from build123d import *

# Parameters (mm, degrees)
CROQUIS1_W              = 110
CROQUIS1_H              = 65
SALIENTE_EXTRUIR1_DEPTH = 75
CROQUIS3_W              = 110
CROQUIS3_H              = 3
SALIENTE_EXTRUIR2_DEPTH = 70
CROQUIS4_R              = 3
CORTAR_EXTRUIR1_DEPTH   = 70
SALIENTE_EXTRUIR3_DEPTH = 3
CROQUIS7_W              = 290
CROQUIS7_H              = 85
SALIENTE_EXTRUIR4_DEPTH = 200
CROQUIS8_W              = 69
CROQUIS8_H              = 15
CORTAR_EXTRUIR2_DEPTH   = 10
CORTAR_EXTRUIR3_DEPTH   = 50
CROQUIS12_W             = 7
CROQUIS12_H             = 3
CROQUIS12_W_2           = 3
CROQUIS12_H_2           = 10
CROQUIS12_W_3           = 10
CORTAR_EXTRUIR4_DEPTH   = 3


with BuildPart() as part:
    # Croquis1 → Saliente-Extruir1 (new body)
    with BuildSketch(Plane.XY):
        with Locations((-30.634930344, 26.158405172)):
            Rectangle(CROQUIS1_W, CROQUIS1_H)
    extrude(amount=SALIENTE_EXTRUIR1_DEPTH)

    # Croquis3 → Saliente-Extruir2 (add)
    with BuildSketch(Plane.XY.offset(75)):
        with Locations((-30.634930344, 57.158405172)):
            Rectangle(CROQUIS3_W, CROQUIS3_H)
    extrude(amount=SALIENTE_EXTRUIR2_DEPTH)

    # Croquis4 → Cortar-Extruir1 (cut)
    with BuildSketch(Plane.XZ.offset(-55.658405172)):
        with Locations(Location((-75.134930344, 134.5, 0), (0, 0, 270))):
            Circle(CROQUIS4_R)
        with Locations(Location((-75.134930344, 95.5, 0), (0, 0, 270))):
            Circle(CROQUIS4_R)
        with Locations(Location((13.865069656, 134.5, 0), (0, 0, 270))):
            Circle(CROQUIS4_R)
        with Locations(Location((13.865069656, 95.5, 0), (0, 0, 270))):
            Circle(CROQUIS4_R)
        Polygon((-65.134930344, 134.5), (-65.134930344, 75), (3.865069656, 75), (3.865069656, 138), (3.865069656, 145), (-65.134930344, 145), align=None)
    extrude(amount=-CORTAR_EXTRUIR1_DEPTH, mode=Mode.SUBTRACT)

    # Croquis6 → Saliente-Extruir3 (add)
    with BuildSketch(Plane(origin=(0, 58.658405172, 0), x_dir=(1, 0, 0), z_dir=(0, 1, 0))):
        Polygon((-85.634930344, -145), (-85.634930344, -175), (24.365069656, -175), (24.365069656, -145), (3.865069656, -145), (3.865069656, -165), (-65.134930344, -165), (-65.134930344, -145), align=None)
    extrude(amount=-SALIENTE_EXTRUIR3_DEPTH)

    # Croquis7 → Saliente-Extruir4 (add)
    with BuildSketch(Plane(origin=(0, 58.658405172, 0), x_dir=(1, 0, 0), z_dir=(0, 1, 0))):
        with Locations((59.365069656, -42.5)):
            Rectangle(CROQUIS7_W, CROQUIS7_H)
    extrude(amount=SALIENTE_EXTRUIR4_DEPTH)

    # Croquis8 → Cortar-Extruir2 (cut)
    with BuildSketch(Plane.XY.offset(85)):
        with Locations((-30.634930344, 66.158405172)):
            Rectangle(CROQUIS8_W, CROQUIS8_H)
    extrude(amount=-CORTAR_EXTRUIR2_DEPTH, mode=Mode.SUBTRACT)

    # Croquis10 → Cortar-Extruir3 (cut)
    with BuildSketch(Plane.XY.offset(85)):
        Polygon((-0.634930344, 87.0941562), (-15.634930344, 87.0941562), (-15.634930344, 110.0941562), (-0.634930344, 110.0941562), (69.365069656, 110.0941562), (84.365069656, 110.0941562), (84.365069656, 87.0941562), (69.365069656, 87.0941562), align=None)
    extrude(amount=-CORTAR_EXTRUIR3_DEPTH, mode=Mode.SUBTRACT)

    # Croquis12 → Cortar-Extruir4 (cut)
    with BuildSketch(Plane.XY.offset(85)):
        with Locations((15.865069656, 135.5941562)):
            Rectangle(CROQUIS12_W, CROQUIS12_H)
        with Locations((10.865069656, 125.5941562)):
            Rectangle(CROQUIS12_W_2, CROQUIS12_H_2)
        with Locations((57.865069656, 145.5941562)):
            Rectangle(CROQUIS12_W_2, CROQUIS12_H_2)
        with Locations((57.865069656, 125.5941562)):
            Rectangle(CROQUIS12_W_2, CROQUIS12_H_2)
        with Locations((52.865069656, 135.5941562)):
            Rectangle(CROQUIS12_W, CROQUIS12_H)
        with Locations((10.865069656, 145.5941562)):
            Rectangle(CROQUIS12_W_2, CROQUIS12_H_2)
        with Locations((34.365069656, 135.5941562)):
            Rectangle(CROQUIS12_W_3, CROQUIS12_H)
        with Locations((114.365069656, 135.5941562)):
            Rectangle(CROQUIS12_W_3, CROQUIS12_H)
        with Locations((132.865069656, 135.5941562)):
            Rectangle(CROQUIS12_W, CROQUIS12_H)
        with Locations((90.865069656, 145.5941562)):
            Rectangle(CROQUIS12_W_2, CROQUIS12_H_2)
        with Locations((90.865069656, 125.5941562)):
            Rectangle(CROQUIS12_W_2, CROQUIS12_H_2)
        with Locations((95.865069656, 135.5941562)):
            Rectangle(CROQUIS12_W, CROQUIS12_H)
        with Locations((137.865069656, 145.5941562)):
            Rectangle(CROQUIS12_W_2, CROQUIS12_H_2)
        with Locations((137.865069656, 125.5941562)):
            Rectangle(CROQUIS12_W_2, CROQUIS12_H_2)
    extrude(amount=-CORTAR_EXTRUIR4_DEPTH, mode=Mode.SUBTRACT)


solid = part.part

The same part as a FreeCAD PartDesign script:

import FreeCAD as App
import Part
import Sketcher

doc = App.newDocument("Part")
params = doc.addObject("Spreadsheet::Sheet", "Params")
for row, (alias, value) in enumerate([
    ("sketch1_width", "110 mm"),
    ("sketch1_height", "65 mm"),
    ("pad1_length", "75 mm"),
    ("sketch2_width", "110 mm"),
    ("sketch2_height", "3 mm"),
    ("pad2_length", "70 mm"),
    ("sketch3_diameter", "6 mm"),
    ("sketch3_width", "69 mm"),
    ("sketch3_height", "70 mm"),
    ("pocket1_length", "70 mm"),
    ("sketch4_width", "110 mm"),
    ("sketch4_width2", "69 mm"),
    ("sketch4_height", "30 mm"),
    ("sketch4_height2", "20 mm"),
    ("pad3_length", "3 mm"),
    ("sketch5_width", "290 mm"),
    ("sketch5_height", "85 mm"),
    ("pad4_length", "200 mm"),
    ("sketch6_width", "69 mm"),
    ("sketch6_height", "15 mm"),
    ("pocket2_length", "10 mm"),
    ("sketch7_width", "100 mm"),
    ("sketch7_height", "23 mm"),
    ("pocket3_length", "50 mm"),
    ("sketch8_width", "7 mm"),
    ("sketch8_width2", "3 mm"),
    ("sketch8_width3", "10 mm"),
    ("pocket4_length", "3 mm"),
], start=1):
    params.set(f"A{row}", alias)
    params.set(f"B{row}", "=" + value)
    params.setAlias(f"B{row}", alias)

body = doc.addObject("PartDesign::Body", "Body")

# Sketch on XY plane
sketch1 = body.newObject("Sketcher::SketchObject", "Sketch")
sketch1.AttachmentSupport = (doc.getObject("XY_Plane"), [""])
sketch1.MapMode = "FlatFace"
sketch1.addGeometry([
    Part.LineSegment(App.Vector(-86, 59, 0), App.Vector(-86, -6, 0)),
    Part.LineSegment(App.Vector(-86, -6, 0), App.Vector(24, -6, 0)),
    Part.LineSegment(App.Vector(24, -6, 0), App.Vector(24, 59, 0)),
    Part.LineSegment(App.Vector(24, 59, 0), App.Vector(-86, 59, 0)),
], False)
sketch1.addConstraint([
    Sketcher.Constraint("Coincident", 0, 2, 1, 1),
    Sketcher.Constraint("Coincident", 1, 2, 2, 1),
    Sketcher.Constraint("Coincident", 2, 2, 3, 1),
    Sketcher.Constraint("Coincident", 3, 2, 0, 1),
    Sketcher.Constraint("Vertical", 0),
    Sketcher.Constraint("Horizontal", 1),
    Sketcher.Constraint("Vertical", 2),
    Sketcher.Constraint("Horizontal", 3),
    Sketcher.Constraint("DistanceX", 1, 1, 1, 2, 110.0),
    Sketcher.Constraint("DistanceY", 0, 2, 0, 1, 65.0),
    Sketcher.Constraint("DistanceX", 0, 2, -1, 1, 85.63493),
    Sketcher.Constraint("DistanceY", 0, 2, -1, 1, 6.341595),
])
sketch1.setExpression("Constraints[8]", "Params.sketch1_width")
sketch1.setExpression("Constraints[9]", "Params.sketch1_height")
pad1 = body.newObject("PartDesign::Pad", "Pad")
pad1.Profile = sketch1
pad1.setExpression("Length", "Params.pad1_length")

# Sketch on XY plane
sketch2 = body.newObject("Sketcher::SketchObject", "Sketch001")
sketch2.AttachmentSupport = (doc.getObject("XY_Plane"), [""])
sketch2.MapMode = "FlatFace"
sketch2.AttachmentOffset = App.Placement(App.Vector(0, 0, 75), App.Rotation())
sketch2.addGeometry([
    Part.LineSegment(App.Vector(-85.6, 58.7, 0), App.Vector(-85.6, 55.7, 0)),
    Part.LineSegment(App.Vector(-85.6, 55.7, 0), App.Vector(24.4, 55.7, 0)),
    Part.LineSegment(App.Vector(24.4, 55.7, 0), App.Vector(24.4, 58.7, 0)),
    Part.LineSegment(App.Vector(24.4, 58.7, 0), App.Vector(-85.6, 58.7, 0)),
], False)
sketch2.addConstraint([
    Sketcher.Constraint("Coincident", 0, 2, 1, 1),
    Sketcher.Constraint("Coincident", 1, 2, 2, 1),
    Sketcher.Constraint("Coincident", 2, 2, 3, 1),
    Sketcher.Constraint("Coincident", 3, 2, 0, 1),
    Sketcher.Constraint("Vertical", 0),
    Sketcher.Constraint("Horizontal", 1),
    Sketcher.Constraint("Vertical", 2),
    Sketcher.Constraint("Horizontal", 3),
    Sketcher.Constraint("DistanceX", 1, 1, 1, 2, 110.0),
    Sketcher.Constraint("DistanceY", 0, 2, 0, 1, 3.0),
    Sketcher.Constraint("DistanceX", 0, 2, -1, 1, 85.63493),
    Sketcher.Constraint("DistanceY", -1, 1, 0, 2, 55.658405),
])
sketch2.setExpression("Constraints[8]", "Params.sketch2_width")
sketch2.setExpression("Constraints[9]", "Params.sketch2_height")
pad2 = body.newObject("PartDesign::Pad", "Pad001")
pad2.Profile = sketch2
pad2.setExpression("Length", "Params.pad2_length")

# Sketch on XZ plane
sketch3 = body.newObject("Sketcher::SketchObject", "Sketch002")
sketch3.AttachmentSupport = (doc.getObject("XZ_Plane"), [""])
sketch3.MapMode = "FlatFace"
sketch3.AttachmentOffset = App.Placement(App.Vector(0, 0, -55.658405), App.Rotation())
sketch3.addGeometry([
    Part.Circle(App.Vector(-75.1, 134.5, 0), App.Vector(0, 0, 1), 3),  # 0
    Part.Circle(App.Vector(-75.1, 95.5, 0), App.Vector(0, 0, 1), 3),  # 1
    Part.Circle(App.Vector(13.9, 134.5, 0), App.Vector(0, 0, 1), 3),  # 2
    Part.Circle(App.Vector(13.9, 95.5, 0), App.Vector(0, 0, 1), 3),  # 3
    Part.LineSegment(App.Vector(-65.1, 75, 0), App.Vector(3.9, 75, 0)),  # 4
    Part.LineSegment(App.Vector(3.9, 75, 0), App.Vector(3.9, 145, 0)),  # 5
    Part.LineSegment(App.Vector(3.9, 145, 0), App.Vector(-65.1, 145, 0)),  # 6
    Part.LineSegment(App.Vector(-65.1, 145, 0), App.Vector(-65.1, 75, 0)),  # 7
], False)
sketch3.addConstraint([
    Sketcher.Constraint("Coincident", 4, 2, 5, 1),
    Sketcher.Constraint("Coincident", 5, 2, 6, 1),
    Sketcher.Constraint("Coincident", 6, 2, 7, 1),
    Sketcher.Constraint("Coincident", 7, 2, 4, 1),
    Sketcher.Constraint("Horizontal", 4),
    Sketcher.Constraint("Vertical", 5),
    Sketcher.Constraint("Horizontal", 6),
    Sketcher.Constraint("Vertical", 7),
    Sketcher.Constraint("Equal", 0, 1),
    Sketcher.Constraint("Equal", 1, 2),
    Sketcher.Constraint("Equal", 2, 3),
    Sketcher.Constraint("Horizontal", 0, 3, 2, 3),
    Sketcher.Constraint("Horizontal", 1, 3, 3, 3),
    Sketcher.Constraint("Vertical", 0, 3, 1, 3),
    Sketcher.Constraint("Vertical", 2, 3, 3, 3),
    Sketcher.Constraint("Diameter", 0, 6.0),
    Sketcher.Constraint("DistanceX", 4, 1, 4, 2, 69.0),
    Sketcher.Constraint("DistanceY", 5, 1, 5, 2, 70.0),
    Sketcher.Constraint("DistanceY", -1, 1, 4, 2, 75.0),
    Sketcher.Constraint("DistanceY", 1, 3, 0, 3, 39.0),
    Sketcher.Constraint("DistanceX", 0, 3, 2, 3, 89.0),
    Sketcher.Constraint("DistanceX", 4, 2, 3, 3, 10.0),
    Sketcher.Constraint("DistanceY", -1, 1, 0, 3, 134.5),
    Sketcher.Constraint("DistanceX", 0, 3, -1, 1, 75.13493),
])
sketch3.setExpression("Constraints[15]", "Params.sketch3_diameter")
sketch3.setExpression("Constraints[16]", "Params.sketch3_width")
sketch3.setExpression("Constraints[17]", "Params.sketch3_height")
pocket1 = body.newObject("PartDesign::Pocket", "Pocket")
pocket1.Profile = sketch3
pocket1.setExpression("Length", "Params.pocket1_length")

# Sketch on XZ plane
sketch4 = body.newObject("Sketcher::SketchObject", "Sketch003")
sketch4.AttachmentSupport = (doc.getObject("XZ_Plane"), [""])
sketch4.MapMode = "FlatFace"
sketch4.AttachmentOffset = App.Placement(App.Vector(0, 0, -58.658405), App.Rotation())
sketch4.addGeometry([
    Part.LineSegment(App.Vector(-86, 145, 0), App.Vector(-86, 175, 0)),  # 0
    Part.LineSegment(App.Vector(-86, 175, 0), App.Vector(24, 175, 0)),  # 1
    Part.LineSegment(App.Vector(24, 175, 0), App.Vector(24, 145, 0)),  # 2
    Part.LineSegment(App.Vector(24, 145, 0), App.Vector(4, 145, 0)),  # 3
    Part.LineSegment(App.Vector(4, 145, 0), App.Vector(4, 165, 0)),  # 4
    Part.LineSegment(App.Vector(4, 165, 0), App.Vector(-65, 165, 0)),  # 5
    Part.LineSegment(App.Vector(-65, 165, 0), App.Vector(-65, 145, 0)),  # 6
    Part.LineSegment(App.Vector(-65, 145, 0), App.Vector(-86, 145, 0)),  # 7
], False)
sketch4.addConstraint([
    Sketcher.Constraint("Coincident", 0, 2, 1, 1),
    Sketcher.Constraint("Coincident", 1, 2, 2, 1),
    Sketcher.Constraint("Coincident", 2, 2, 3, 1),
    Sketcher.Constraint("Coincident", 3, 2, 4, 1),
    Sketcher.Constraint("Coincident", 4, 2, 5, 1),
    Sketcher.Constraint("Coincident", 5, 2, 6, 1),
    Sketcher.Constraint("Coincident", 6, 2, 7, 1),
    Sketcher.Constraint("Coincident", 7, 2, 0, 1),
    Sketcher.Constraint("Vertical", 0),
    Sketcher.Constraint("Horizontal", 1),
    Sketcher.Constraint("Vertical", 2),
    Sketcher.Constraint("Horizontal", 3),
    Sketcher.Constraint("Vertical", 4),
    Sketcher.Constraint("Horizontal", 5),
    Sketcher.Constraint("Vertical", 6),
    Sketcher.Constraint("Horizontal", 7),
    Sketcher.Constraint("Horizontal", 3, 2, 6, 2),
    Sketcher.Constraint("Equal", 3, 7),
    Sketcher.Constraint("DistanceX", 1, 1, 1, 2, 110.0),
    Sketcher.Constraint("DistanceX", 5, 2, 5, 1, 69.0),
    Sketcher.Constraint("DistanceY", 0, 1, 0, 2, 30.0),
    Sketcher.Constraint("DistanceY", 4, 1, 4, 2, 20.0),
    Sketcher.Constraint("DistanceY", -1, 1, 0, 2, 175.0),
    Sketcher.Constraint("DistanceX", 0, 2, -1, 1, 85.63493),
])
sketch4.setExpression("Constraints[18]", "Params.sketch4_width")
sketch4.setExpression("Constraints[19]", "Params.sketch4_width2")
sketch4.setExpression("Constraints[20]", "Params.sketch4_height")
sketch4.setExpression("Constraints[21]", "Params.sketch4_height2")
pad3 = body.newObject("PartDesign::Pad", "Pad002")
pad3.Profile = sketch4
pad3.setExpression("Length", "Params.pad3_length")

# Sketch on XZ plane
sketch5 = body.newObject("Sketcher::SketchObject", "Sketch004")
sketch5.AttachmentSupport = (doc.getObject("XZ_Plane"), [""])
sketch5.MapMode = "FlatFace"
sketch5.AttachmentOffset = App.Placement(App.Vector(0, 0, -58.658405), App.Rotation())
sketch5.addGeometry([
    Part.LineSegment(App.Vector(-86, 0, 0), App.Vector(-86, 85, 0)),
    Part.LineSegment(App.Vector(-86, 85, 0), App.Vector(204, 85, 0)),
    Part.LineSegment(App.Vector(204, 85, 0), App.Vector(204, 0, 0)),
    Part.LineSegment(App.Vector(204, 0, 0), App.Vector(-86, 0, 0)),
], False)
sketch5.addConstraint([
    Sketcher.Constraint("Coincident", 0, 2, 1, 1),
    Sketcher.Constraint("Coincident", 1, 2, 2, 1),
    Sketcher.Constraint("Coincident", 2, 2, 3, 1),
    Sketcher.Constraint("Coincident", 3, 2, 0, 1),
    Sketcher.Constraint("Vertical", 0),
    Sketcher.Constraint("Horizontal", 1),
    Sketcher.Constraint("Vertical", 2),
    Sketcher.Constraint("Horizontal", 3),
    Sketcher.Constraint("PointOnObject", 2, 2, -1),
    Sketcher.Constraint("DistanceX", 1, 1, 1, 2, 290.0),
    Sketcher.Constraint("DistanceY", 0, 1, 0, 2, 85.0),
    Sketcher.Constraint("DistanceX", 0, 2, -1, 1, 85.63493),
])
sketch5.setExpression("Constraints[9]", "Params.sketch5_width")
sketch5.setExpression("Constraints[10]", "Params.sketch5_height")
pad4 = body.newObject("PartDesign::Pad", "Pad003")
pad4.Profile = sketch5
pad4.setExpression("Length", "Params.pad4_length")
pad4.Reversed = True

# Sketch on XY plane
sketch6 = body.newObject("Sketcher::SketchObject", "Sketch005")
sketch6.AttachmentSupport = (doc.getObject("XY_Plane"), [""])
sketch6.MapMode = "FlatFace"
sketch6.AttachmentOffset = App.Placement(App.Vector(0, 0, 85), App.Rotation())
sketch6.addGeometry([
    Part.LineSegment(App.Vector(-65, 74, 0), App.Vector(-65, 59, 0)),
    Part.LineSegment(App.Vector(-65, 59, 0), App.Vector(4, 59, 0)),
    Part.LineSegment(App.Vector(4, 59, 0), App.Vector(4, 74, 0)),
    Part.LineSegment(App.Vector(4, 74, 0), App.Vector(-65, 74, 0)),
], False)
sketch6.addConstraint([
    Sketcher.Constraint("Coincident", 0, 2, 1, 1),
    Sketcher.Constraint("Coincident", 1, 2, 2, 1),
    Sketcher.Constraint("Coincident", 2, 2, 3, 1),
    Sketcher.Constraint("Coincident", 3, 2, 0, 1),
    Sketcher.Constraint("Vertical", 0),
    Sketcher.Constraint("Horizontal", 1),
    Sketcher.Constraint("Vertical", 2),
    Sketcher.Constraint("Horizontal", 3),
    Sketcher.Constraint("DistanceX", 1, 1, 1, 2, 69.0),
    Sketcher.Constraint("DistanceY", 0, 2, 0, 1, 15.0),
    Sketcher.Constraint("DistanceX", 0, 2, -1, 1, 65.13493),
    Sketcher.Constraint("DistanceY", -1, 1, 0, 2, 58.658405),
])
sketch6.setExpression("Constraints[8]", "Params.sketch6_width")
sketch6.setExpression("Constraints[9]", "Params.sketch6_height")
pocket2 = body.newObject("PartDesign::Pocket", "Pocket001")
pocket2.Profile = sketch6
pocket2.setExpression("Length", "Params.pocket2_length")

# Sketch on XY plane
sketch7 = body.newObject("Sketcher::SketchObject", "Sketch006")
sketch7.AttachmentSupport = (doc.getObject("XY_Plane"), [""])
sketch7.MapMode = "FlatFace"
sketch7.AttachmentOffset = App.Placement(App.Vector(0, 0, 85), App.Rotation())
sketch7.addGeometry([
    Part.LineSegment(App.Vector(-16, 87, 0), App.Vector(84, 87, 0)),
    Part.LineSegment(App.Vector(84, 87, 0), App.Vector(84, 110, 0)),
    Part.LineSegment(App.Vector(84, 110, 0), App.Vector(-16, 110, 0)),
    Part.LineSegment(App.Vector(-16, 110, 0), App.Vector(-16, 87, 0)),
], False)
sketch7.addConstraint([
    Sketcher.Constraint("Coincident", 0, 2, 1, 1),
    Sketcher.Constraint("Coincident", 1, 2, 2, 1),
    Sketcher.Constraint("Coincident", 2, 2, 3, 1),
    Sketcher.Constraint("Coincident", 3, 2, 0, 1),
    Sketcher.Constraint("Horizontal", 0),
    Sketcher.Constraint("Vertical", 1),
    Sketcher.Constraint("Horizontal", 2),
    Sketcher.Constraint("Vertical", 3),
    Sketcher.Constraint("DistanceX", 0, 1, 0, 2, 100.0),
    Sketcher.Constraint("DistanceY", 1, 1, 1, 2, 23.0),
    Sketcher.Constraint("DistanceX", -1, 1, 0, 2, 84.36507),
    Sketcher.Constraint("DistanceY", -1, 1, 0, 2, 87.094156),
])
sketch7.setExpression("Constraints[8]", "Params.sketch7_width")
sketch7.setExpression("Constraints[9]", "Params.sketch7_height")
pocket3 = body.newObject("PartDesign::Pocket", "Pocket002")
pocket3.Profile = sketch7
pocket3.setExpression("Length", "Params.pocket3_length")

# Sketch on XY plane
sketch8 = body.newObject("Sketcher::SketchObject", "Sketch007")
sketch8.AttachmentSupport = (doc.getObject("XY_Plane"), [""])
sketch8.MapMode = "FlatFace"
sketch8.AttachmentOffset = App.Placement(App.Vector(0, 0, 85), App.Rotation())
sketch8.addGeometry([
    Part.LineSegment(App.Vector(12.4, 137.1, 0), App.Vector(12.4, 134.1, 0)),  # 0
    Part.LineSegment(App.Vector(12.4, 134.1, 0), App.Vector(19.4, 134.1, 0)),  # 1
    Part.LineSegment(App.Vector(19.4, 134.1, 0), App.Vector(19.4, 137.1, 0)),  # 2
    Part.LineSegment(App.Vector(19.4, 137.1, 0), App.Vector(12.4, 137.1, 0)),  # 3
    Part.LineSegment(App.Vector(9.4, 130.6, 0), App.Vector(9.4, 120.6, 0)),  # 4
    Part.LineSegment(App.Vector(9.4, 120.6, 0), App.Vector(12.4, 120.6, 0)),  # 5
    Part.LineSegment(App.Vector(12.4, 120.6, 0), App.Vector(12.4, 130.6, 0)),  # 6
    Part.LineSegment(App.Vector(12.4, 130.6, 0), App.Vector(9.4, 130.6, 0)),  # 7
    Part.LineSegment(App.Vector(56.4, 150.6, 0), App.Vector(56.4, 140.6, 0)),  # 8
    Part.LineSegment(App.Vector(56.4, 140.6, 0), App.Vector(59.4, 140.6, 0)),  # 9
    Part.LineSegment(App.Vector(59.4, 140.6, 0), App.Vector(59.4, 150.6, 0)),  # 10
    Part.LineSegment(App.Vector(59.4, 150.6, 0), App.Vector(56.4, 150.6, 0)),  # 11
    Part.LineSegment(App.Vector(56.4, 130.6, 0), App.Vector(56.4, 120.6, 0)),  # 12
    Part.LineSegment(App.Vector(56.4, 120.6, 0), App.Vector(59.4, 120.6, 0)),  # 13
    Part.LineSegment(App.Vector(59.4, 120.6, 0), App.Vector(59.4, 130.6, 0)),  # 14
    Part.LineSegment(App.Vector(59.4, 130.6, 0), App.Vector(56.4, 130.6, 0)),  # 15
    Part.LineSegment(App.Vector(49.4, 137.1, 0), App.Vector(49.4, 134.1, 0)),  # 16
    Part.LineSegment(App.Vector(49.4, 134.1, 0), App.Vector(56.4, 134.1, 0)),  # 17
    Part.LineSegment(App.Vector(56.4, 134.1, 0), App.Vector(56.4, 137.1, 0)),  # 18
    Part.LineSegment(App.Vector(56.4, 137.1, 0), App.Vector(49.4, 137.1, 0)),  # 19
    Part.LineSegment(App.Vector(9.4, 150.6, 0), App.Vector(9.4, 140.6, 0)),  # 20
    Part.LineSegment(App.Vector(9.4, 140.6, 0), App.Vector(12.4, 140.6, 0)),  # 21
    Part.LineSegment(App.Vector(12.4, 140.6, 0), App.Vector(12.4, 150.6, 0)),  # 22
    Part.LineSegment(App.Vector(12.4, 150.6, 0), App.Vector(9.4, 150.6, 0)),  # 23
    Part.LineSegment(App.Vector(29.4, 137.1, 0), App.Vector(29.4, 134.1, 0)),  # 24
    Part.LineSegment(App.Vector(29.4, 134.1, 0), App.Vector(39.4, 134.1, 0)),  # 25
    Part.LineSegment(App.Vector(39.4, 134.1, 0), App.Vector(39.4, 137.1, 0)),  # 26
    Part.LineSegment(App.Vector(39.4, 137.1, 0), App.Vector(29.4, 137.1, 0)),  # 27
    Part.LineSegment(App.Vector(109.4, 137.1, 0), App.Vector(109.4, 134.1, 0)),  # 28
    Part.LineSegment(App.Vector(109.4, 134.1, 0), App.Vector(119.4, 134.1, 0)),  # 29
    Part.LineSegment(App.Vector(119.4, 134.1, 0), App.Vector(119.4, 137.1, 0)),  # 30
    Part.LineSegment(App.Vector(119.4, 137.1, 0), App.Vector(109.4, 137.1, 0)),  # 31
    Part.LineSegment(App.Vector(129.4, 137.1, 0), App.Vector(129.4, 134.1, 0)),  # 32
    Part.LineSegment(App.Vector(129.4, 134.1, 0), App.Vector(136.4, 134.1, 0)),  # 33
    Part.LineSegment(App.Vector(136.4, 134.1, 0), App.Vector(136.4, 137.1, 0)),  # 34
    Part.LineSegment(App.Vector(136.4, 137.1, 0), App.Vector(129.4, 137.1, 0)),  # 35
    Part.LineSegment(App.Vector(89.4, 150.6, 0), App.Vector(89.4, 140.6, 0)),  # 36
    Part.LineSegment(App.Vector(89.4, 140.6, 0), App.Vector(92.4, 140.6, 0)),  # 37
    Part.LineSegment(App.Vector(92.4, 140.6, 0), App.Vector(92.4, 150.6, 0)),  # 38
    Part.LineSegment(App.Vector(92.4, 150.6, 0), App.Vector(89.4, 150.6, 0)),  # 39
    Part.LineSegment(App.Vector(89.4, 130.6, 0), App.Vector(89.4, 120.6, 0)),  # 40
    Part.LineSegment(App.Vector(89.4, 120.6, 0), App.Vector(92.4, 120.6, 0)),  # 41
    Part.LineSegment(App.Vector(92.4, 120.6, 0), App.Vector(92.4, 130.6, 0)),  # 42
    Part.LineSegment(App.Vector(92.4, 130.6, 0), App.Vector(89.4, 130.6, 0)),  # 43
    Part.LineSegment(App.Vector(92.4, 137.1, 0), App.Vector(92.4, 134.1, 0)),  # 44
    Part.LineSegment(App.Vector(92.4, 134.1, 0), App.Vector(99.4, 134.1, 0)),  # 45
    Part.LineSegment(App.Vector(99.4, 134.1, 0), App.Vector(99.4, 137.1, 0)),  # 46
    Part.LineSegment(App.Vector(99.4, 137.1, 0), App.Vector(92.4, 137.1, 0)),  # 47
    Part.LineSegment(App.Vector(136.4, 150.6, 0), App.Vector(136.4, 140.6, 0)),  # 48
    Part.LineSegment(App.Vector(136.4, 140.6, 0), App.Vector(139.4, 140.6, 0)),  # 49
    Part.LineSegment(App.Vector(139.4, 140.6, 0), App.Vector(139.4, 150.6, 0)),  # 50
    Part.LineSegment(App.Vector(139.4, 150.6, 0), App.Vector(136.4, 150.6, 0)),  # 51
    Part.LineSegment(App.Vector(136.4, 130.6, 0), App.Vector(136.4, 120.6, 0)),  # 52
    Part.LineSegment(App.Vector(136.4, 120.6, 0), App.Vector(139.4, 120.6, 0)),  # 53
    Part.LineSegment(App.Vector(139.4, 120.6, 0), App.Vector(139.4, 130.6, 0)),  # 54
    Part.LineSegment(App.Vector(139.4, 130.6, 0), App.Vector(136.4, 130.6, 0)),  # 55
], False)
sketch8.addConstraint([
    Sketcher.Constraint("Coincident", 0, 2, 1, 1),
    Sketcher.Constraint("Coincident", 1, 2, 2, 1),
    Sketcher.Constraint("Coincident", 2, 2, 3, 1),
    Sketcher.Constraint("Coincident", 3, 2, 0, 1),
    Sketcher.Constraint("Coincident", 4, 2, 5, 1),
    Sketcher.Constraint("Coincident", 5, 2, 6, 1),
    Sketcher.Constraint("Coincident", 6, 2, 7, 1),
    Sketcher.Constraint("Coincident", 7, 2, 4, 1),
    Sketcher.Constraint("Coincident", 8, 2, 9, 1),
    Sketcher.Constraint("Coincident", 9, 2, 10, 1),
    Sketcher.Constraint("Coincident", 10, 2, 11, 1),
    Sketcher.Constraint("Coincident", 11, 2, 8, 1),
    Sketcher.Constraint("Coincident", 12, 2, 13, 1),
    Sketcher.Constraint("Coincident", 13, 2, 14, 1),
    Sketcher.Constraint("Coincident", 14, 2, 15, 1),
    Sketcher.Constraint("Coincident", 15, 2, 12, 1),
    Sketcher.Constraint("Coincident", 16, 2, 17, 1),
    Sketcher.Constraint("Coincident", 17, 2, 18, 1),
    Sketcher.Constraint("Coincident", 18, 2, 19, 1),
    Sketcher.Constraint("Coincident", 19, 2, 16, 1),
    Sketcher.Constraint("Coincident", 20, 2, 21, 1),
    Sketcher.Constraint("Coincident", 21, 2, 22, 1),
    Sketcher.Constraint("Coincident", 22, 2, 23, 1),
    Sketcher.Constraint("Coincident", 23, 2, 20, 1),
    Sketcher.Constraint("Coincident", 24, 2, 25, 1),
    Sketcher.Constraint("Coincident", 25, 2, 26, 1),
    Sketcher.Constraint("Coincident", 26, 2, 27, 1),
    Sketcher.Constraint("Coincident", 27, 2, 24, 1),
    Sketcher.Constraint("Coincident", 28, 2, 29, 1),
    Sketcher.Constraint("Coincident", 29, 2, 30, 1),
    Sketcher.Constraint("Coincident", 30, 2, 31, 1),
    Sketcher.Constraint("Coincident", 31, 2, 28, 1),
    Sketcher.Constraint("Coincident", 32, 2, 33, 1),
    Sketcher.Constraint("Coincident", 33, 2, 34, 1),
    Sketcher.Constraint("Coincident", 34, 2, 35, 1),
    Sketcher.Constraint("Coincident", 35, 2, 32, 1),
    Sketcher.Constraint("Coincident", 36, 2, 37, 1),
    Sketcher.Constraint("Coincident", 37, 2, 38, 1),
    Sketcher.Constraint("Coincident", 38, 2, 39, 1),
    Sketcher.Constraint("Coincident", 39, 2, 36, 1),
    Sketcher.Constraint("Coincident", 40, 2, 41, 1),
    Sketcher.Constraint("Coincident", 41, 2, 42, 1),
    Sketcher.Constraint("Coincident", 42, 2, 43, 1),
    Sketcher.Constraint("Coincident", 43, 2, 40, 1),
    Sketcher.Constraint("Coincident", 44, 2, 45, 1),
    Sketcher.Constraint("Coincident", 45, 2, 46, 1),
    Sketcher.Constraint("Coincident", 46, 2, 47, 1),
    Sketcher.Constraint("Coincident", 47, 2, 44, 1),
    Sketcher.Constraint("Coincident", 48, 2, 49, 1),
    Sketcher.Constraint("Coincident", 49, 2, 50, 1),
    Sketcher.Constraint("Coincident", 50, 2, 51, 1),
    Sketcher.Constraint("Coincident", 51, 2, 48, 1),
    Sketcher.Constraint("Coincident", 52, 2, 53, 1),
    Sketcher.Constraint("Coincident", 53, 2, 54, 1),
    Sketcher.Constraint("Coincident", 54, 2, 55, 1),
    Sketcher.Constraint("Coincident", 55, 2, 52, 1),
    Sketcher.Constraint("Vertical", 0),
    Sketcher.Constraint("Horizontal", 1),
    Sketcher.Constraint("Vertical", 2),
    Sketcher.Constraint("Horizontal", 3),
    Sketcher.Constraint("Vertical", 4),
    Sketcher.Constraint("Horizontal", 5),
    Sketcher.Constraint("Vertical", 6),
    Sketcher.Constraint("Horizontal", 7),
    Sketcher.Constraint("Vertical", 8),
    Sketcher.Constraint("Horizontal", 9),
    Sketcher.Constraint("Vertical", 10),
    Sketcher.Constraint("Horizontal", 11),
    Sketcher.Constraint("Vertical", 12),
    Sketcher.Constraint("Horizontal", 13),
    Sketcher.Constraint("Vertical", 14),
    Sketcher.Constraint("Horizontal", 15),
    Sketcher.Constraint("Vertical", 16),
    Sketcher.Constraint("Horizontal", 17),
    Sketcher.Constraint("Vertical", 18),
    Sketcher.Constraint("Horizontal", 19),
    Sketcher.Constraint("Vertical", 20),
    Sketcher.Constraint("Horizontal", 21),
    Sketcher.Constraint("Vertical", 22),
    Sketcher.Constraint("Horizontal", 23),
    Sketcher.Constraint("Vertical", 24),
    Sketcher.Constraint("Horizontal", 25),
    Sketcher.Constraint("Vertical", 26),
    Sketcher.Constraint("Horizontal", 27),
    Sketcher.Constraint("Vertical", 28),
    Sketcher.Constraint("Horizontal", 29),
    Sketcher.Constraint("Vertical", 30),
    Sketcher.Constraint("Horizontal", 31),
    Sketcher.Constraint("Vertical", 32),
    Sketcher.Constraint("Horizontal", 33),
    Sketcher.Constraint("Vertical", 34),
    Sketcher.Constraint("Horizontal", 35),
    Sketcher.Constraint("Vertical", 36),
    Sketcher.Constraint("Horizontal", 37),
    Sketcher.Constraint("Vertical", 38),
    Sketcher.Constraint("Horizontal", 39),
    Sketcher.Constraint("Vertical", 40),
    Sketcher.Constraint("Horizontal", 41),
    Sketcher.Constraint("Vertical", 42),
    Sketcher.Constraint("Horizontal", 43),
    Sketcher.Constraint("Vertical", 44),
    Sketcher.Constraint("Horizontal", 45),
    Sketcher.Constraint("Vertical", 46),
    Sketcher.Constraint("Horizontal", 47),
    Sketcher.Constraint("Vertical", 48),
    Sketcher.Constraint("Horizontal", 49),
    Sketcher.Constraint("Vertical", 50),
    Sketcher.Constraint("Horizontal", 51),
    Sketcher.Constraint("Vertical", 52),
    Sketcher.Constraint("Horizontal", 53),
    Sketcher.Constraint("Vertical", 54),
    Sketcher.Constraint("Horizontal", 55),
    Sketcher.Constraint("Horizontal", 5, 2, 12, 2),
    Sketcher.Constraint("Horizontal", 7, 2, 14, 2),
    Sketcher.Constraint("Horizontal", 1, 2, 16, 2),
    Sketcher.Constraint("Horizontal", 3, 2, 18, 2),
    Sketcher.Constraint("Horizontal", 9, 2, 20, 2),
    Sketcher.Constraint("Horizontal", 11, 2, 22, 2),
    Sketcher.Constraint("Horizontal", 17, 2, 24, 2),
    Sketcher.Constraint("Horizontal", 19, 2, 26, 2),
    Sketcher.Constraint("Horizontal", 25, 2, 28, 2),
    Sketcher.Constraint("Horizontal", 27, 2, 30, 2),
    Sketcher.Constraint("Horizontal", 29, 2, 32, 2),
    Sketcher.Constraint("Horizontal", 31, 2, 34, 2),
    Sketcher.Constraint("Horizontal", 21, 2, 36, 2),
    Sketcher.Constraint("Horizontal", 23, 2, 38, 2),
    Sketcher.Constraint("Horizontal", 13, 2, 40, 2),
    Sketcher.Constraint("Horizontal", 15, 2, 42, 2),
    Sketcher.Constraint("Horizontal", 33, 2, 44, 2),
    Sketcher.Constraint("Horizontal", 35, 2, 46, 2),
    Sketcher.Constraint("Horizontal", 37, 2, 48, 2),
    Sketcher.Constraint("Horizontal", 39, 2, 50, 2),
    Sketcher.Constraint("Horizontal", 41, 2, 52, 2),
    Sketcher.Constraint("Horizontal", 43, 2, 54, 2),
    Sketcher.Constraint("Vertical", 3, 2, 5, 2),
    Sketcher.Constraint("Vertical", 11, 2, 12, 2),
    Sketcher.Constraint("Vertical", 10, 2, 13, 2),
    Sketcher.Constraint("Vertical", 15, 2, 17, 2),
    Sketcher.Constraint("Vertical", 7, 2, 20, 2),
    Sketcher.Constraint("Vertical", 6, 2, 21, 2),
    Sketcher.Constraint("Vertical", 39, 2, 40, 2),
    Sketcher.Constraint("Vertical", 38, 2, 41, 2),
    Sketcher.Constraint("Vertical", 42, 2, 44, 2),
    Sketcher.Constraint("Vertical", 34, 2, 48, 2),
    Sketcher.Constraint("Vertical", 51, 2, 52, 2),
    Sketcher.Constraint("Vertical", 50, 2, 53, 2),
    Sketcher.Constraint("Equal", 7, 9),
    Sketcher.Constraint("Equal", 3, 17),
    Sketcher.Constraint("Equal", 27, 29),
    Sketcher.Constraint("Equal", 19, 33),
    Sketcher.Constraint("Equal", 23, 37),
    Sketcher.Constraint("Equal", 35, 45),
    Sketcher.Constraint("Equal", 43, 49),
    Sketcher.Constraint("Equal", 55, 0),
    Sketcher.Constraint("Equal", 31, 4),
    Sketcher.Constraint("Equal", 6, 8),
    Sketcher.Constraint("DistanceX", 1, 1, 1, 2, 7.0),
    Sketcher.Constraint("DistanceX", 5, 1, 5, 2, 3.0),
    Sketcher.Constraint("DistanceX", 25, 1, 25, 2, 10.0),
    Sketcher.Constraint("DistanceX", 2, 2, 8, 2, 37.0),
    Sketcher.Constraint("DistanceY", 6, 2, 8, 2, 10.0),
    Sketcher.Constraint("DistanceX", 1, 2, 24, 2, 10.0),
    Sketcher.Constraint("DistanceX", 14, 2, 28, 2, 50.0),
    Sketcher.Constraint("DistanceX", 29, 2, 32, 2, 10.0),
    Sketcher.Constraint("DistanceX", 36, 2, 31, 2, 20.0),
    Sketcher.Constraint("DistanceY", 4, 2, 0, 2, 13.5),
    Sketcher.Constraint("DistanceX", -1, 1, 0, 2, 12.36507),
    Sketcher.Constraint("DistanceY", -1, 1, 0, 2, 134.094156),
])
sketch8.setExpression("Constraints[156]", "Params.sketch8_width")
sketch8.setExpression("Constraints[157]", "Params.sketch8_width2")
sketch8.setExpression("Constraints[158]", "Params.sketch8_width3")
pocket4 = body.newObject("PartDesign::Pocket", "Pocket003")
pocket4.Profile = sketch8
pocket4.setExpression("Length", "Params.pocket4_length")

doc.recompute()
